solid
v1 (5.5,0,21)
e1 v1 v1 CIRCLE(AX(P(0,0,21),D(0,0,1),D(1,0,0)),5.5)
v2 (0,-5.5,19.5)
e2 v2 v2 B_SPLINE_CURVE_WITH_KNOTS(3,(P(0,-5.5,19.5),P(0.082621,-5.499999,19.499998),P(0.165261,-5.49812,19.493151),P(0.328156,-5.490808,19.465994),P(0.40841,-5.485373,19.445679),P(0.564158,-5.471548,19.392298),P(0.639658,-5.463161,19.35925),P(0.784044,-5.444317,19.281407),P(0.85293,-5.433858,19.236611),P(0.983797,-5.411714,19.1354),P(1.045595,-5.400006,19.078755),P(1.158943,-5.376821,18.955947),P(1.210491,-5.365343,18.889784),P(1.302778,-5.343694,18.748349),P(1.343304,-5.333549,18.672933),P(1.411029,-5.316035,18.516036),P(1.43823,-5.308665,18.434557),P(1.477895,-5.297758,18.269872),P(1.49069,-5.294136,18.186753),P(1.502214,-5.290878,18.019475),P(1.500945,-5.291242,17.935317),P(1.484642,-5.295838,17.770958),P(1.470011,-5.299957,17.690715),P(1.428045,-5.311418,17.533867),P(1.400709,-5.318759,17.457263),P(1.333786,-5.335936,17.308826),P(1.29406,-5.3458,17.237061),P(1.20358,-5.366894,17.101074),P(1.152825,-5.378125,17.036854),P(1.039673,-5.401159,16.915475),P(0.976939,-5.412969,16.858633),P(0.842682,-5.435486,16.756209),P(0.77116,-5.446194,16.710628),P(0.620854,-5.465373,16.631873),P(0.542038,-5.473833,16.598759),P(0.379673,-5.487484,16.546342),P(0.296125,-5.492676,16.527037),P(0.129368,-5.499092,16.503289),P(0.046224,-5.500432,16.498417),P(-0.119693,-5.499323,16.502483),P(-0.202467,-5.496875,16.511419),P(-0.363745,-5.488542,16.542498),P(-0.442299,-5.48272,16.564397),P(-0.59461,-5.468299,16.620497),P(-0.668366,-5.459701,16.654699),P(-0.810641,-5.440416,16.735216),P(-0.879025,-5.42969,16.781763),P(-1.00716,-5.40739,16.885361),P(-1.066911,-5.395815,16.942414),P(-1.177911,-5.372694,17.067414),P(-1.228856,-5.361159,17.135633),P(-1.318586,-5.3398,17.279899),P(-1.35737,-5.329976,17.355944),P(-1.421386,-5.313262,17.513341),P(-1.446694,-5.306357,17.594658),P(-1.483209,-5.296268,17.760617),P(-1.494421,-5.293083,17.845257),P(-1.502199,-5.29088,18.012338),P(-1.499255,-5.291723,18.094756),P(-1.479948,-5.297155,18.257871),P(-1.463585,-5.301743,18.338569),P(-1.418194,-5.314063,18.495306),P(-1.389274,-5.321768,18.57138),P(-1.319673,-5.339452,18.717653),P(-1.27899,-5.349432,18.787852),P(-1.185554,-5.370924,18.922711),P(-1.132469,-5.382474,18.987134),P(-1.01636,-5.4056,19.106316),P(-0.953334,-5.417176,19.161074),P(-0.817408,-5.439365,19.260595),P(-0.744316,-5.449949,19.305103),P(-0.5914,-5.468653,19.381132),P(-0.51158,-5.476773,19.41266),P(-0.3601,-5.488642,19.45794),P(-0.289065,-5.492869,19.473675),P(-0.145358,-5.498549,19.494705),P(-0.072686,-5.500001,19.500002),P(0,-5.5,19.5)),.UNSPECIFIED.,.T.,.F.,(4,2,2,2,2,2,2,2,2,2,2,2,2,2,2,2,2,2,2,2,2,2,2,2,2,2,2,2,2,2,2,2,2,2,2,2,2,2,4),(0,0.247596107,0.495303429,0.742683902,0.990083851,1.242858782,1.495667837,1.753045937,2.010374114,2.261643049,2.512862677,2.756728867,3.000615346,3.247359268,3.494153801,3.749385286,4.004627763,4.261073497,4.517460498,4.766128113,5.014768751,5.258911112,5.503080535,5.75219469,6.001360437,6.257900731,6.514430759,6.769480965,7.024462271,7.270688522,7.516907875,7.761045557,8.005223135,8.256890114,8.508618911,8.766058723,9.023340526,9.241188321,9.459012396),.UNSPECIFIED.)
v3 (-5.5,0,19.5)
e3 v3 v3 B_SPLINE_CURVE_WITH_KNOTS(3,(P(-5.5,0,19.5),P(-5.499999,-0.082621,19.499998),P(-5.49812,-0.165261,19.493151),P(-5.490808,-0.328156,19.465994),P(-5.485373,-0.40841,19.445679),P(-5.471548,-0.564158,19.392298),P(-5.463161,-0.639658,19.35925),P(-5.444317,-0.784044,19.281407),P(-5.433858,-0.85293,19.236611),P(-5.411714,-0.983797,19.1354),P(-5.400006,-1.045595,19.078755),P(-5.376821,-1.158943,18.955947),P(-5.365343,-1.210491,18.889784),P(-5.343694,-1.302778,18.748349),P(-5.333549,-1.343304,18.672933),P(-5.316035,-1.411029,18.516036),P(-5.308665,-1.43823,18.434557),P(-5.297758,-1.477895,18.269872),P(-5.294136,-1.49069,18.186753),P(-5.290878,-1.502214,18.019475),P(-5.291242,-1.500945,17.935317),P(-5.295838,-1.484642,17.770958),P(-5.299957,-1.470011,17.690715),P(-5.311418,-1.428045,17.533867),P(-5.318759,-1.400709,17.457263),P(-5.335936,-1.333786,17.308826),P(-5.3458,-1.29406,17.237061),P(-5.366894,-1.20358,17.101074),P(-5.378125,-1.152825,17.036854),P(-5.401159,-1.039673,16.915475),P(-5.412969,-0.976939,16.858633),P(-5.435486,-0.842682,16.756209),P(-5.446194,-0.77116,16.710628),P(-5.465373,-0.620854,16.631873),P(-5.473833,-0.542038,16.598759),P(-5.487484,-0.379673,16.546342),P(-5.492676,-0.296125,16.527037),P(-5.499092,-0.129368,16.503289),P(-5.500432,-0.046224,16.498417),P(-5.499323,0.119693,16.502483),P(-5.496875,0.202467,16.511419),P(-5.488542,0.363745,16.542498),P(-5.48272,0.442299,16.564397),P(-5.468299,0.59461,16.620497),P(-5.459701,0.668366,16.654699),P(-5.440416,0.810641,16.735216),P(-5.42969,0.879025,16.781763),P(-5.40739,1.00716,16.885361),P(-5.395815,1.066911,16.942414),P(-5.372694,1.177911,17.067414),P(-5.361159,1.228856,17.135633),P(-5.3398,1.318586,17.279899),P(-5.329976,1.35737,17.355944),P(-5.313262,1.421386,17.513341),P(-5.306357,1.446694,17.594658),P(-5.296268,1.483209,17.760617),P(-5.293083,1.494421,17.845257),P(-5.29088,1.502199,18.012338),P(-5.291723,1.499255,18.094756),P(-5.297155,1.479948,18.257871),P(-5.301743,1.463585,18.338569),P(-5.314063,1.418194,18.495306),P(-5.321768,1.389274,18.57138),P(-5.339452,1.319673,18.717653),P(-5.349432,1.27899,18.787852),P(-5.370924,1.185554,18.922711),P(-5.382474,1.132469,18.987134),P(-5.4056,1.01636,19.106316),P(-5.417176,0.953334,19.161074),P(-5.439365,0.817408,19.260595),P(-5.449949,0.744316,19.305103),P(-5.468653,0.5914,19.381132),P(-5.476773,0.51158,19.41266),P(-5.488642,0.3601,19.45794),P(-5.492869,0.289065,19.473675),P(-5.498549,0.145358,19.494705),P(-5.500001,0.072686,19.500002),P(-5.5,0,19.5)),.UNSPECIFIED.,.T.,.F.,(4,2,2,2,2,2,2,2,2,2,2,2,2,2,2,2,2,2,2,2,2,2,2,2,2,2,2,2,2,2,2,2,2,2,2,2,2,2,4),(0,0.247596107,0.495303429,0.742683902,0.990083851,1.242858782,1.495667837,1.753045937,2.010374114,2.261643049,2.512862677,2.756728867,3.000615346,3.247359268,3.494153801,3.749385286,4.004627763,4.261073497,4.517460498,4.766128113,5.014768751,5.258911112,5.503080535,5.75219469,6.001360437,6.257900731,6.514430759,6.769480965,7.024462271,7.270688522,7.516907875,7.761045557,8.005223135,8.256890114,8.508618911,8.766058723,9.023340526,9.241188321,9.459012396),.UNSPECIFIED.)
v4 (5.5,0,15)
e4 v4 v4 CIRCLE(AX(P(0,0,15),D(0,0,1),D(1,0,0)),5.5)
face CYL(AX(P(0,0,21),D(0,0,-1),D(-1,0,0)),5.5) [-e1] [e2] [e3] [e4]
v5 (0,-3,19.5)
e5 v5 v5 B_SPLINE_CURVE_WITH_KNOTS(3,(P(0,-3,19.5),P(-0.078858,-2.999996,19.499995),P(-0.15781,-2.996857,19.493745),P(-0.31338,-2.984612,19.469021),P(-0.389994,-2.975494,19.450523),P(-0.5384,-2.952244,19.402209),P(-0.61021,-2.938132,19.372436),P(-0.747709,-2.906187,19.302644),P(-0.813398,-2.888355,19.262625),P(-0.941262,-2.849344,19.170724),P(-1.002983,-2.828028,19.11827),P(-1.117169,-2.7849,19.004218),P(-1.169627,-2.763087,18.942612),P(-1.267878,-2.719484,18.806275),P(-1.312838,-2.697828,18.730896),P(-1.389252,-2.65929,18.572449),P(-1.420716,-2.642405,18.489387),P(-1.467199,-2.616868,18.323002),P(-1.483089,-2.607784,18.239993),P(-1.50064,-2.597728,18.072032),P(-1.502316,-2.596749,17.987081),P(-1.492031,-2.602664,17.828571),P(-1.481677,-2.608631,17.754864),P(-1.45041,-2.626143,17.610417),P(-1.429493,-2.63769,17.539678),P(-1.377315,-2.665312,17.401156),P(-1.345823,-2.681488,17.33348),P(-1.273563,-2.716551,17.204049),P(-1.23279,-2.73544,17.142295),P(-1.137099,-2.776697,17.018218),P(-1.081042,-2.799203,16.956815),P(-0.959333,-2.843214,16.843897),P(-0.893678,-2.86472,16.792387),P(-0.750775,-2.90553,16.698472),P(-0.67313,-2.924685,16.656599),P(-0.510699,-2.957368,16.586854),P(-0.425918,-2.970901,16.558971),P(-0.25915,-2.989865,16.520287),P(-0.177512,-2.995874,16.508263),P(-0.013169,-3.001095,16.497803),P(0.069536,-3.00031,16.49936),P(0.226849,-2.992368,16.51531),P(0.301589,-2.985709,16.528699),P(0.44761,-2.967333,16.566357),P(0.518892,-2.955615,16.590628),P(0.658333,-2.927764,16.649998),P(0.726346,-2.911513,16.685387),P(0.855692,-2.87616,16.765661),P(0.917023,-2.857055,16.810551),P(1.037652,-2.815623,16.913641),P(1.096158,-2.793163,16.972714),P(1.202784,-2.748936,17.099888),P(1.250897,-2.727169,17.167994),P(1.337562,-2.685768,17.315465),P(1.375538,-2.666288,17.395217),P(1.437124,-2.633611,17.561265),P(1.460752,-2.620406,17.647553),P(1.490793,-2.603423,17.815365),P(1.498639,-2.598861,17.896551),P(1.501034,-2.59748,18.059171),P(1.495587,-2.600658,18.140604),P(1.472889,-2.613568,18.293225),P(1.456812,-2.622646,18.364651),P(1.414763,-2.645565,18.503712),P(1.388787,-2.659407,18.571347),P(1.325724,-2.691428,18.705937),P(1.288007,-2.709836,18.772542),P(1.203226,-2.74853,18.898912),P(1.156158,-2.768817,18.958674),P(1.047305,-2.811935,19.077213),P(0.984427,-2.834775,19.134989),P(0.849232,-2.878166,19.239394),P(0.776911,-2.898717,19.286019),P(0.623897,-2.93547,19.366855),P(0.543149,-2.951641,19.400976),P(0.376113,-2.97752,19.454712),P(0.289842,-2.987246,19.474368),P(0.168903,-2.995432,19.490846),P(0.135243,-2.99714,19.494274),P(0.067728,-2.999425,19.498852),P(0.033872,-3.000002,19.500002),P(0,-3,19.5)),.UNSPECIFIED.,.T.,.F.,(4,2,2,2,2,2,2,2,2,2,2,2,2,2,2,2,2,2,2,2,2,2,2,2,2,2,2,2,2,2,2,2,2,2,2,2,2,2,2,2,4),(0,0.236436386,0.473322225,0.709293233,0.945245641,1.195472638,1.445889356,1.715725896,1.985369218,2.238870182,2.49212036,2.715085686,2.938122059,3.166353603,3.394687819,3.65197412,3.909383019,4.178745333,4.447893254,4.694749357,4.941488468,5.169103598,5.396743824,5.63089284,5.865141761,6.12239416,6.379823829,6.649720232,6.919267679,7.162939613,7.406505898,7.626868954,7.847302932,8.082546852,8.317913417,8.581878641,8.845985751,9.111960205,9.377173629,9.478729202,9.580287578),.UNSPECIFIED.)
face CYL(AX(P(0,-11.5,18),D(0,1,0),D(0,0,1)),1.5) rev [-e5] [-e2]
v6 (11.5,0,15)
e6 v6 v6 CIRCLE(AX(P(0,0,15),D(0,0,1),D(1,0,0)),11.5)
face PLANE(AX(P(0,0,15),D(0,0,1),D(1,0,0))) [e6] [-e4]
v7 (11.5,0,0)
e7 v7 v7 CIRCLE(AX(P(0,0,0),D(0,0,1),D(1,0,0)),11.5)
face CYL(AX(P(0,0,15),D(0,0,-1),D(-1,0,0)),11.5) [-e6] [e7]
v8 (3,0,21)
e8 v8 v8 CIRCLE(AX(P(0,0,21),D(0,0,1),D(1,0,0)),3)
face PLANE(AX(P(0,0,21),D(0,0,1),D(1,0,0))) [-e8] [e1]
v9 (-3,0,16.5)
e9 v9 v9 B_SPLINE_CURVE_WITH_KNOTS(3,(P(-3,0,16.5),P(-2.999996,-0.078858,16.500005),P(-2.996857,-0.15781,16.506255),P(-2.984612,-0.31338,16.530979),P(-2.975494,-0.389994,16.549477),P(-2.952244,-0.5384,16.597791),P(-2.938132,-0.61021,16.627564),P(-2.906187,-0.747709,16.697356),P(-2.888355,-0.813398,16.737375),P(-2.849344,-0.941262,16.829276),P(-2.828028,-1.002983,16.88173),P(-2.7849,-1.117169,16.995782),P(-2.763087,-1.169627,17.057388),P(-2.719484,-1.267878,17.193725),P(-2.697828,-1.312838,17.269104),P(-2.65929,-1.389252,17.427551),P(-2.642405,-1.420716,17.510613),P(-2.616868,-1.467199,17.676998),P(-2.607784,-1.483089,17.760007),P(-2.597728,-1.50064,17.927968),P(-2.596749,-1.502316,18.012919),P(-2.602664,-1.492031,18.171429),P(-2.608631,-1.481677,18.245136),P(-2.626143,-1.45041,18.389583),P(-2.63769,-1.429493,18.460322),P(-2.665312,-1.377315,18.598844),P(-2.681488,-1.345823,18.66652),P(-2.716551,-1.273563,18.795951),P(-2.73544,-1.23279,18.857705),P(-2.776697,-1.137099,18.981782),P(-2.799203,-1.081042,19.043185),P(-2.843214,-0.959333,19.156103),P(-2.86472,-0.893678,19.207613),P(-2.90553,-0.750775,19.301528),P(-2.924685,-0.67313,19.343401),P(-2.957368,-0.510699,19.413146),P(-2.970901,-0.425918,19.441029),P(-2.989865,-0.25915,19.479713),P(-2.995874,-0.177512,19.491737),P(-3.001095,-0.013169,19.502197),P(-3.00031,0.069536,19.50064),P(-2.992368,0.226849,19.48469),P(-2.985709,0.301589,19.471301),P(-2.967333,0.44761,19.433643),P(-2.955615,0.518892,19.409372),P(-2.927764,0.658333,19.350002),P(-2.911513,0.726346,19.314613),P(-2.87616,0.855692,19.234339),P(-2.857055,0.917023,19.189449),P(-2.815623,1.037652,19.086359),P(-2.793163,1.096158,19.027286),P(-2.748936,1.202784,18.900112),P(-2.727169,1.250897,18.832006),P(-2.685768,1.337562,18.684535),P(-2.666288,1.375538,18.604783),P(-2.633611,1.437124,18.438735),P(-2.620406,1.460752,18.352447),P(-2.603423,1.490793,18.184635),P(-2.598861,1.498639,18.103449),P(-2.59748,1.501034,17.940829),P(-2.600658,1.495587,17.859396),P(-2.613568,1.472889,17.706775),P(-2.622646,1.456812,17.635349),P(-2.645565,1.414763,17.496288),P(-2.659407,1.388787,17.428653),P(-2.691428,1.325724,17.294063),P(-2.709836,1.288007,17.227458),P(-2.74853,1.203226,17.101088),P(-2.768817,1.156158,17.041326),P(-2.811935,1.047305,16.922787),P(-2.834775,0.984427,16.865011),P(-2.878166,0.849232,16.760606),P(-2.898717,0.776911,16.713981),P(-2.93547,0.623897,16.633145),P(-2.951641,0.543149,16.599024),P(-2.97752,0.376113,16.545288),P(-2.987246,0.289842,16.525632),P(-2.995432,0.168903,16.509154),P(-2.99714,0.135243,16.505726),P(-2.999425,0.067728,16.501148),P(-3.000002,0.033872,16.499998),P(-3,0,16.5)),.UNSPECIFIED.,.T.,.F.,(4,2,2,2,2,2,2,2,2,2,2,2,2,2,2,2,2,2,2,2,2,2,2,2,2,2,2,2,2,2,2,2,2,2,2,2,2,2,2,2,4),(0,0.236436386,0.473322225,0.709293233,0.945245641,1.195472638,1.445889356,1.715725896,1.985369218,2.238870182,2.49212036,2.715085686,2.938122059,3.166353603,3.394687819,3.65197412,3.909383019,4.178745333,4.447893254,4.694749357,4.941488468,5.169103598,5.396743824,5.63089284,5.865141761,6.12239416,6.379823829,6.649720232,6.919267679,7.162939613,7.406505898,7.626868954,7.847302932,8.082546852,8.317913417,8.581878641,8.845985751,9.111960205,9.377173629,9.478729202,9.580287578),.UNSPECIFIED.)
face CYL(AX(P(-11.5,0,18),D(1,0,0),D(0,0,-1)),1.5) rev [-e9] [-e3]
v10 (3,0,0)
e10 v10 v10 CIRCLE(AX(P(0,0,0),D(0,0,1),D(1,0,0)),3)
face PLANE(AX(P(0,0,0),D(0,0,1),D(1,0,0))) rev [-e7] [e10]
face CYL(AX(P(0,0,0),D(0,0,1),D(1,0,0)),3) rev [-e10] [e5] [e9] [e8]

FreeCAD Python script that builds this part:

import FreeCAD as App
import Part
import Sketcher
from FreeCAD import Vector

doc = App.newDocument("Part")
body = doc.addObject("PartDesign::Body", "Body")

sketch1 = body.newObject("Sketcher::SketchObject", "Sketch")
sketch1.AttachmentSupport = (doc.getObject("XY_Plane"), [""])
sketch1.MapMode = "FlatFace"
sketch1.addGeometry(Part.Circle(Vector(0, 0, 0), Vector(0, 0, 1), 12), False)
sketch1.addConstraint(Sketcher.Constraint("Coincident", 0, 3, -1, 1))
sketch1.addConstraint(Sketcher.Constraint("Diameter", 0, 23.0))
pad1 = body.newObject("PartDesign::Pad", "Pad")
pad1.Profile = sketch1
pad1.Length = 15

sketch2 = body.newObject("Sketcher::SketchObject", "Sketch001")
sketch2.AttachmentSupport = (doc.getObject("XY_Plane"), [""])
sketch2.MapMode = "FlatFace"
sketch2.AttachmentOffset = App.Placement(Vector(0, 0, 15), App.Rotation())
sketch2.addGeometry(Part.Circle(Vector(0, 0, 0), Vector(0, 0, 1), 6), False)
sketch2.addConstraint(Sketcher.Constraint("Coincident", 0, 3, -1, 1))
sketch2.addConstraint(Sketcher.Constraint("Diameter", 0, 11.0))
pad2 = body.newObject("PartDesign::Pad", "Pad001")
pad2.Profile = sketch2
pad2.Length = 6

sketch3 = body.newObject("Sketcher::SketchObject", "Sketch002")
sketch3.AttachmentSupport = (doc.getObject("XY_Plane"), [""])
sketch3.MapMode = "FlatFace"
sketch3.AttachmentOffset = App.Placement(Vector(0, 0, 21), App.Rotation())
sketch3.addGeometry(Part.Circle(Vector(0, 0, 0), Vector(0, 0, 1), 3), False)
sketch3.addConstraint(Sketcher.Constraint("Coincident", 0, 3, -1, 1))
sketch3.addConstraint(Sketcher.Constraint("Diameter", 0, 6.0))
pocket1 = body.newObject("PartDesign::Pocket", "Pocket")
pocket1.Profile = sketch3
pocket1.Type = "ThroughAll"

sketch4 = body.newObject("Sketcher::SketchObject", "Sketch003")
sketch4.AttachmentSupport = (doc.getObject("XZ_Plane"), [""])
sketch4.MapMode = "FlatFace"
sketch4.addGeometry(Part.Circle(Vector(0, 18, 0), Vector(0, 0, 1), 1.5), False)
sketch4.addConstraint(Sketcher.Constraint("PointOnObject", 0, 3, -2))
sketch4.addConstraint(Sketcher.Constraint("Diameter", 0, 3.0))
sketch4.addConstraint(Sketcher.Constraint("DistanceY", -1, 1, 0, 3, 18.0))
pocket2 = body.newObject("PartDesign::Pocket", "Pocket001")
pocket2.Profile = sketch4
pocket2.Type = "ThroughAll"
pocket2.Reversed = True

sketch5 = body.newObject("Sketcher::SketchObject", "Sketch004")
sketch5.AttachmentSupport = (doc.getObject("YZ_Plane"), [""])
sketch5.MapMode = "FlatFace"
sketch5.addGeometry(Part.Circle(Vector(0, 18, 0), Vector(0, 0, 1), 1.5), False)
sketch5.addConstraint(Sketcher.Constraint("PointOnObject", 0, 3, -2))
sketch5.addConstraint(Sketcher.Constraint("Diameter", 0, 3.0))
sketch5.addConstraint(Sketcher.Constraint("DistanceY", -1, 1, 0, 3, 18.0))
pocket3 = body.newObject("PartDesign::Pocket", "Pocket002")
pocket3.Profile = sketch5
pocket3.Type = "ThroughAll"

doc.recompute()
